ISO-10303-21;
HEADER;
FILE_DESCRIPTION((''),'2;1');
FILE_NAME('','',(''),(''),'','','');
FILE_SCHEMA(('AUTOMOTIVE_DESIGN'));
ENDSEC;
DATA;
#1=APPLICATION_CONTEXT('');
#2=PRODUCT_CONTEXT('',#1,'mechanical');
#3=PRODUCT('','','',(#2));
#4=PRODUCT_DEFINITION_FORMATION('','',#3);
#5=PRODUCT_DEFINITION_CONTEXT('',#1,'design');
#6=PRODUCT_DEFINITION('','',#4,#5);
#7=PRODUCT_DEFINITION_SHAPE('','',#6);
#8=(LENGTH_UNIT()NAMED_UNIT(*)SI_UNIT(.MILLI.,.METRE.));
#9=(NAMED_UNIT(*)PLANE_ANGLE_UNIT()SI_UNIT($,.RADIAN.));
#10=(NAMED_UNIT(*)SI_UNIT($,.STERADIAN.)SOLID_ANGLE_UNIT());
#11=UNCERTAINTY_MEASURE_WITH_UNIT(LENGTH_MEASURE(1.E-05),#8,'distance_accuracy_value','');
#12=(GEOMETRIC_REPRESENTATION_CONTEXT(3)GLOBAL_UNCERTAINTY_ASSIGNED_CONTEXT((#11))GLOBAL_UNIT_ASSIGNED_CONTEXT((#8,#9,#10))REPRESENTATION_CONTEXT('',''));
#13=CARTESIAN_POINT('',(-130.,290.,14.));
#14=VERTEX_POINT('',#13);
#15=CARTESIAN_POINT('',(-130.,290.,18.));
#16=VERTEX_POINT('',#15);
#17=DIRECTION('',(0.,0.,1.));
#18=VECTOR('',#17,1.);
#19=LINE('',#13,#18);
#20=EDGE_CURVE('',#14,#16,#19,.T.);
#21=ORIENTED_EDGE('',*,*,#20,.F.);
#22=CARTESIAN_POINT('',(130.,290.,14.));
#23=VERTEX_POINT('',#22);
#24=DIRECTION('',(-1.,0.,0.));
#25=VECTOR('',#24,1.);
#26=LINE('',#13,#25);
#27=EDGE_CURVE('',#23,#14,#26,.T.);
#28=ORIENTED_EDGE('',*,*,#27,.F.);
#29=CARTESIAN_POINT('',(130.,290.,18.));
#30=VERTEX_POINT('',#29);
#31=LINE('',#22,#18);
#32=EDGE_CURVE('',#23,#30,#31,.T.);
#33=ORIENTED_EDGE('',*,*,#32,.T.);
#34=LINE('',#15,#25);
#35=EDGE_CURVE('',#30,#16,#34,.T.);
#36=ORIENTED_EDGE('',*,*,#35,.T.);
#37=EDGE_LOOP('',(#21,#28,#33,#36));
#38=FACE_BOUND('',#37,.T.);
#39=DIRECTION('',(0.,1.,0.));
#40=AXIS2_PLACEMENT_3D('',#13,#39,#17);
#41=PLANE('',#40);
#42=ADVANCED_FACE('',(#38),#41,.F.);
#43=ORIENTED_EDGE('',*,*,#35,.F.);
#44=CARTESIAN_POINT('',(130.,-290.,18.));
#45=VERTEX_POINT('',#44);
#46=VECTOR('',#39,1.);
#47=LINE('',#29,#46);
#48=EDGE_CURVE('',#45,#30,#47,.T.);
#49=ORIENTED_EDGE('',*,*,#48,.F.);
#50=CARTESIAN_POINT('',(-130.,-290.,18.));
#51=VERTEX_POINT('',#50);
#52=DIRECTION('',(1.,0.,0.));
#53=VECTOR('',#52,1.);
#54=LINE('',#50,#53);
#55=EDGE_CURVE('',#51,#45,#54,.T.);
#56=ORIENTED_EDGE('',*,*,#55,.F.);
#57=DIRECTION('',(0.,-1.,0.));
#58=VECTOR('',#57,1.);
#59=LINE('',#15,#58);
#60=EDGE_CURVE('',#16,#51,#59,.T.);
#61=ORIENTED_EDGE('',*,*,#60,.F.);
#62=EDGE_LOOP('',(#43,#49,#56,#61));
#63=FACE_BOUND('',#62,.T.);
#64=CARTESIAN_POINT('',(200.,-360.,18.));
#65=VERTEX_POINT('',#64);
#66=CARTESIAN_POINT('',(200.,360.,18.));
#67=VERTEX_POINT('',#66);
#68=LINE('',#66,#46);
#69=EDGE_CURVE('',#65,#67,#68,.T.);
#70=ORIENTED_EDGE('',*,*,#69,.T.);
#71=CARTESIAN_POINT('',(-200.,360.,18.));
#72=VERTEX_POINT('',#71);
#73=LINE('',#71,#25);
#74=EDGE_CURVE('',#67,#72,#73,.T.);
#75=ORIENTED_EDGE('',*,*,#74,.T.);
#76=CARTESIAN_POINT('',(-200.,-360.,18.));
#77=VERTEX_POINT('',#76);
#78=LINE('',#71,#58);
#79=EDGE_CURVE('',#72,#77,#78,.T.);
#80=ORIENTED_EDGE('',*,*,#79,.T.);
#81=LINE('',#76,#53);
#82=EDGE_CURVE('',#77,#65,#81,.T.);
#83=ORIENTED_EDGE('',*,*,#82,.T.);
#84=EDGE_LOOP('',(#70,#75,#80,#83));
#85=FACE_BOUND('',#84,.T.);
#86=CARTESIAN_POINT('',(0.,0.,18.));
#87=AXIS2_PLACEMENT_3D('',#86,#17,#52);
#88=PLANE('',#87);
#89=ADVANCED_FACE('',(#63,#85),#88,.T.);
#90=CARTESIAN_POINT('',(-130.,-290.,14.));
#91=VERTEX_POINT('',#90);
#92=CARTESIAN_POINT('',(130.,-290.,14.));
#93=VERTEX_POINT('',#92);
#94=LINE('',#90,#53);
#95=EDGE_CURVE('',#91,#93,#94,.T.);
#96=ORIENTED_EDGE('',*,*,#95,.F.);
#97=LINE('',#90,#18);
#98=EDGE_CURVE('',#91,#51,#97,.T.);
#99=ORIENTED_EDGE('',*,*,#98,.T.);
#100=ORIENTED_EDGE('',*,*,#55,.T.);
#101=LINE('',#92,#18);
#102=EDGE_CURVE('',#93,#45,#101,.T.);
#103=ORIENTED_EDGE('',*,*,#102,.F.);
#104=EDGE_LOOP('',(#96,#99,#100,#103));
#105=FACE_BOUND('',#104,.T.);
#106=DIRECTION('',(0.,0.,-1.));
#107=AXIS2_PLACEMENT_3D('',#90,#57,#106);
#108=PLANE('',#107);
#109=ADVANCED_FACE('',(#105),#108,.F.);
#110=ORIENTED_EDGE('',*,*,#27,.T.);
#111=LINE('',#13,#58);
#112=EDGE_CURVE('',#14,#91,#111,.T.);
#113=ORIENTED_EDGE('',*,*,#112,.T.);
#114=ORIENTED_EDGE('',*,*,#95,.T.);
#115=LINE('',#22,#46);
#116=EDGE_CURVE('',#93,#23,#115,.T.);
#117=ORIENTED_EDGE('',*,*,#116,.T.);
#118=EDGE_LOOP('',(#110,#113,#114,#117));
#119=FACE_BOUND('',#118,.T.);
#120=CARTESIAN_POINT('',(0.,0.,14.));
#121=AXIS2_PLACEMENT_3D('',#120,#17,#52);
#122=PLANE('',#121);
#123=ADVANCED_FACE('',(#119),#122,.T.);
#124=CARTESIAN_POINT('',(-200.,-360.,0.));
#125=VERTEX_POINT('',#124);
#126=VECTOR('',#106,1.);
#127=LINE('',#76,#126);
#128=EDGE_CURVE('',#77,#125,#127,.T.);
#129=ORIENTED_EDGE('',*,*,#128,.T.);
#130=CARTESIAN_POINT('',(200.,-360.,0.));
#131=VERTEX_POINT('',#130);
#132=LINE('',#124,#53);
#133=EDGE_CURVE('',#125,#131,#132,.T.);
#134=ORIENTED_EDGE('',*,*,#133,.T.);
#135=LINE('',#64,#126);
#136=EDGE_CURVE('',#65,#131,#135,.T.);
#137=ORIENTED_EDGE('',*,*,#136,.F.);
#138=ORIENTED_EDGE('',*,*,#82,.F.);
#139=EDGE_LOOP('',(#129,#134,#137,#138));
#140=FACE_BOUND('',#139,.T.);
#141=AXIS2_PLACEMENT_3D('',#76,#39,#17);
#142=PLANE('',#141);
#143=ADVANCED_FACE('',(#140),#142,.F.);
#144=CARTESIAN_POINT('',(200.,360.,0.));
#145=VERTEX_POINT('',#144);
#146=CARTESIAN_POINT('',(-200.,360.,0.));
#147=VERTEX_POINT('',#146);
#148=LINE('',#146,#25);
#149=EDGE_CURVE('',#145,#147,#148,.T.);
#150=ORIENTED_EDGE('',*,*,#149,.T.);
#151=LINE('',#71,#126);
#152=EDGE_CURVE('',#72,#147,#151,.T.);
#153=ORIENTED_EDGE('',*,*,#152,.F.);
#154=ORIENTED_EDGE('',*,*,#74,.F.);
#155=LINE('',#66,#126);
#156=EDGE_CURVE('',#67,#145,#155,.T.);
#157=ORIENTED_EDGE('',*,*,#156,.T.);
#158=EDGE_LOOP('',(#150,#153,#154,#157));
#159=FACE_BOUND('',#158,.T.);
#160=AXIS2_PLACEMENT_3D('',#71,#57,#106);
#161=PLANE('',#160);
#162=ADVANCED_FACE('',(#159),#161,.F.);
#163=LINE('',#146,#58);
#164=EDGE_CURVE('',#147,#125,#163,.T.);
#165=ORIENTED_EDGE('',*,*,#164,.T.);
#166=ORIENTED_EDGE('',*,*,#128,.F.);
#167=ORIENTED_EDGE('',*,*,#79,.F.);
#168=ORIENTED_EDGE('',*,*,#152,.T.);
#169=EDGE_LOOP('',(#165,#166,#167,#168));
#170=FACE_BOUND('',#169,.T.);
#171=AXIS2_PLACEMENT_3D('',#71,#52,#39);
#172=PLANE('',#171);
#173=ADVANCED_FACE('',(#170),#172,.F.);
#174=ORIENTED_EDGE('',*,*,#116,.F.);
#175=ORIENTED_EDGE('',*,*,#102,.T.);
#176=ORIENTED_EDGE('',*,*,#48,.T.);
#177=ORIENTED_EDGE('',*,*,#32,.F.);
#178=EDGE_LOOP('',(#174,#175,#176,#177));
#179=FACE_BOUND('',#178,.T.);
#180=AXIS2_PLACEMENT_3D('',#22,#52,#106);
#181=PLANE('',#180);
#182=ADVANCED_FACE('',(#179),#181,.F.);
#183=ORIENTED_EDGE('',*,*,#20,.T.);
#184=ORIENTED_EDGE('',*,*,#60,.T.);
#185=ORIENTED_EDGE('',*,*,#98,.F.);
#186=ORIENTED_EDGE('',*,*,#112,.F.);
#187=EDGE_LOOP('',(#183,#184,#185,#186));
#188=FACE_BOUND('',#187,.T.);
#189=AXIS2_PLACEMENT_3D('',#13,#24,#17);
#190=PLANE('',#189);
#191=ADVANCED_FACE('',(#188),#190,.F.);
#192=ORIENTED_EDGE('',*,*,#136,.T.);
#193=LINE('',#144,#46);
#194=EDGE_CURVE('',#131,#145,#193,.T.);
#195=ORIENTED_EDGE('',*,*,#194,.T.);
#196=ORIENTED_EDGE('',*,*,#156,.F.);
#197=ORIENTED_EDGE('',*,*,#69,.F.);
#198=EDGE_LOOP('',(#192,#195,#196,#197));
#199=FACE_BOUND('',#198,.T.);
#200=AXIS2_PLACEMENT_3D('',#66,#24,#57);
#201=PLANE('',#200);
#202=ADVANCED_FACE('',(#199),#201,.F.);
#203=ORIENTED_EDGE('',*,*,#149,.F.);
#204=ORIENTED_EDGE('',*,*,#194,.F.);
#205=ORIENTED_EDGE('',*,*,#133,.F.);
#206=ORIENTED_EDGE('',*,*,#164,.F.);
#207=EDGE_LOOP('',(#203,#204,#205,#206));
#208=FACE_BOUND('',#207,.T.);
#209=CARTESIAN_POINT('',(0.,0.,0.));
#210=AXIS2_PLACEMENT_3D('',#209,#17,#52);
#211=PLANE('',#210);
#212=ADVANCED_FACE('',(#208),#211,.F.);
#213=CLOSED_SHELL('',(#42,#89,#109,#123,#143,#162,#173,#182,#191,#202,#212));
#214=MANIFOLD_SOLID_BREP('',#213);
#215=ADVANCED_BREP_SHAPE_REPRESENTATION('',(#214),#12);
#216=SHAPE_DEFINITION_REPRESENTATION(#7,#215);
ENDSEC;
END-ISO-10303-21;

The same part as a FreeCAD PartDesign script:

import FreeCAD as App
import Part
import Sketcher

V = App.Vector

doc = App.newDocument("Part")
body = doc.addObject("PartDesign::Body", "Body")

# Sketch on XY plane
sketch1 = body.newObject("Sketcher::SketchObject", "Sketch")
sketch1.AttachmentSupport = (doc.getObject("XY_Plane"), [""])
sketch1.MapMode = "FlatFace"
sketch1.addGeometry(Part.LineSegment(V(-200, 360, 0), V(-200, -360, 0)), False)
sketch1.addGeometry(Part.LineSegment(V(-200, -360, 0), V(200, -360, 0)), False)
sketch1.addGeometry(Part.LineSegment(V(200, -360, 0), V(200, 360, 0)), False)
sketch1.addGeometry(Part.LineSegment(V(200, 360, 0), V(-200, 360, 0)), False)
sketch1.addConstraint(Sketcher.Constraint("Coincident", 0, 2, 1, 1))
sketch1.addConstraint(Sketcher.Constraint("Coincident", 1, 2, 2, 1))
sketch1.addConstraint(Sketcher.Constraint("Coincident", 2, 2, 3, 1))
sketch1.addConstraint(Sketcher.Constraint("Coincident", 3, 2, 0, 1))
sketch1.addConstraint(Sketcher.Constraint("Vertical", 0))
sketch1.addConstraint(Sketcher.Constraint("Horizontal", 1))
sketch1.addConstraint(Sketcher.Constraint("Vertical", 2))
sketch1.addConstraint(Sketcher.Constraint("Horizontal", 3))
sketch1.addConstraint(Sketcher.Constraint("Symmetric", 0, 2, 2, 2, -1, 1))
sketch1.addConstraint(Sketcher.Constraint("DistanceX", 1, 1, 1, 2, 400.0))
sketch1.addConstraint(Sketcher.Constraint("DistanceY", 0, 2, 0, 1, 720.0))
pad1 = body.newObject("PartDesign::Pad", "Pad")
pad1.Profile = sketch1
pad1.Length = 18

# Sketch on XY plane
sketch2 = body.newObject("Sketcher::SketchObject", "Sketch001")
sketch2.AttachmentSupport = (doc.getObject("XY_Plane"), [""])
sketch2.MapMode = "FlatFace"
sketch2.AttachmentOffset = App.Placement(V(0, 0, 18), App.Rotation())
sketch2.addGeometry(Part.LineSegment(V(-130, 290, 0), V(-130, -290, 0)), False)
sketch2.addGeometry(Part.LineSegment(V(-130, -290, 0), V(130, -290, 0)), False)
sketch2.addGeometry(Part.LineSegment(V(130, -290, 0), V(130, 290, 0)), False)
sketch2.addGeometry(Part.LineSegment(V(130, 290, 0), V(-130, 290, 0)), False)
sketch2.addConstraint(Sketcher.Constraint("Coincident", 0, 2, 1, 1))
sketch2.addConstraint(Sketcher.Constraint("Coincident", 1, 2, 2, 1))
sketch2.addConstraint(Sketcher.Constraint("Coincident", 2, 2, 3, 1))
sketch2.addConstraint(Sketcher.Constraint("Coincident", 3, 2, 0, 1))
sketch2.addConstraint(Sketcher.Constraint("Vertical", 0))
sketch2.addConstraint(Sketcher.Constraint("Horizontal", 1))
sketch2.addConstraint(Sketcher.Constraint("Vertical", 2))
sketch2.addConstraint(Sketcher.Constraint("Horizontal", 3))
sketch2.addConstraint(Sketcher.Constraint("Symmetric", 0, 2, 2, 2, -1, 1))
sketch2.addConstraint(Sketcher.Constraint("DistanceX", 1, 1, 1, 2, 260.0))
sketch2.addConstraint(Sketcher.Constraint("DistanceY", 0, 2, 0, 1, 580.0))
pocket1 = body.newObject("PartDesign::Pocket", "Pocket")
pocket1.Profile = sketch2
pocket1.Length = 4

doc.recompute()
